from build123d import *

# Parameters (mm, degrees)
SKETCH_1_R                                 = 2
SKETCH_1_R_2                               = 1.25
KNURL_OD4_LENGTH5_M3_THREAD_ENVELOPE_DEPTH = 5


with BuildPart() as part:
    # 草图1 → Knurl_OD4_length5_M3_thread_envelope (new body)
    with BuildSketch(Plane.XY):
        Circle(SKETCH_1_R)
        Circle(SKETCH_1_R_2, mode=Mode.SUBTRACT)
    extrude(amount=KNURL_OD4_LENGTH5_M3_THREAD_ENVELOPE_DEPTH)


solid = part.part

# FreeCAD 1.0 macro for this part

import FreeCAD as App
import Part
import Sketcher

doc = App.newDocument("Part")
params = doc.addObject("Spreadsheet::Sheet", "Params")
for row, (alias, value) in enumerate([
    ("sketch1_diameter", "4 mm"),
    ("sketch1_diameter2", "2.5 mm"),
    ("pad1_length", "5 mm"),
], start=1):
    params.set(f"A{row}", alias)
    params.set(f"B{row}", "=" + value)
    params.setAlias(f"B{row}", alias)

body = doc.addObject("PartDesign::Body", "Body")

sketch1 = body.newObject("Sketcher::SketchObject", "Sketch")
sketch1.AttachmentSupport = (doc.getObject("XY_Plane"), [""])
sketch1.MapMode = "FlatFace"
sketch1.addGeometry([
    Part.Circle(App.Vector(0, 0, 0), App.Vector(0, 0, 1), 2),
    Part.Circle(App.Vector(0, 0, 0), App.Vector(0, 0, 1), 1.2),
], False)
sketch1.addConstraint([
    Sketcher.Constraint("Coincident", 0, 3, -1, 1),
    Sketcher.Constraint("Coincident", 1, 3, -1, 1),
    Sketcher.Constraint("Diameter", 0, 4.0),
    Sketcher.Constraint("Diameter", 1, 2.5),
])
sketch1.setExpression("Constraints[2]", "Params.sketch1_diameter")
sketch1.setExpression("Constraints[3]", "Params.sketch1_diameter2")
pad1 = body.newObject("PartDesign::Pad", "Pad")
pad1.Profile = sketch1
pad1.setExpression("Length", "Params.pad1_length")

doc.recompute()
